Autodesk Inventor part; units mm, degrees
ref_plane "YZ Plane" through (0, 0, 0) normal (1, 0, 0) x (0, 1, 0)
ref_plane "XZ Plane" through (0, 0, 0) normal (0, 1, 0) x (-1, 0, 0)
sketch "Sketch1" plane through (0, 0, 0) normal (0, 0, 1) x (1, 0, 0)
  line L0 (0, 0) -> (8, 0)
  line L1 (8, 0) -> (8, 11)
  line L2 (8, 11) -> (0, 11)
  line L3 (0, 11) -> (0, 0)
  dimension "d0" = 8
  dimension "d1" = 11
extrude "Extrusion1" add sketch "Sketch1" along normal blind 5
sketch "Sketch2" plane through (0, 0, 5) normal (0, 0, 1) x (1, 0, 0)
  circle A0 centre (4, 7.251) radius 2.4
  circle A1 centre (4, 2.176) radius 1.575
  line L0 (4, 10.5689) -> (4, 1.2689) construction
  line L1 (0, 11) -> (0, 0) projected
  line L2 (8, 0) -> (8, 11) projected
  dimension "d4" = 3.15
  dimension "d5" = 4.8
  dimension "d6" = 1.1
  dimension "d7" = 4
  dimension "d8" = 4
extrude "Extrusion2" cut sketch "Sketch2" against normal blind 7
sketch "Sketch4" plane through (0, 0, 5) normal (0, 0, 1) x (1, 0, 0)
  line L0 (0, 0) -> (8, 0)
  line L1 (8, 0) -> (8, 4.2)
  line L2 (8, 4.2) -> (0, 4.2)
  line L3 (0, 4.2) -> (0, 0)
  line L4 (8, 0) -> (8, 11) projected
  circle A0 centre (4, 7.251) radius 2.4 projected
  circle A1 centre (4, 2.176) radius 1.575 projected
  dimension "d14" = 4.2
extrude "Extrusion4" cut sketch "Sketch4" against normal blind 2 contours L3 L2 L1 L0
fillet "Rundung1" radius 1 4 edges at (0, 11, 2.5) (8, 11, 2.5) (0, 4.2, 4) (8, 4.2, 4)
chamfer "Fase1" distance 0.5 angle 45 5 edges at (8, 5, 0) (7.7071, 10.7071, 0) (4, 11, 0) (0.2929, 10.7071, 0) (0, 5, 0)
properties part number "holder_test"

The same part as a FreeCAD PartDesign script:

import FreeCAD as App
import Part
import Sketcher

V = App.Vector


def edges_at(feature, points):
    """Names of the edges that pass closest to the given points."""
    edges = feature.Shape.Edges
    near = lambda p: min(range(len(edges)), key=lambda i: edges[i].distToShape(Part.Vertex(*p))[0])
    return sorted({f"Edge{near(p) + 1}" for p in points})

doc = App.newDocument("Part")
params = doc.addObject("Spreadsheet::Sheet", "Params")
for row, (alias, value) in enumerate([
    ("sketch1_width", "8 mm"),
    ("sketch1_height", "11 mm"),
    ("pad1_length", "5 mm"),
    ("sketch2_diameter", "4.8 mm"),
    ("sketch2_diameter2", "3.15 mm"),
    ("pocket1_length", "7 mm"),
    ("sketch3_height", "4.2 mm"),
    ("sketch3_diameter", "3.15 mm"),
    ("sketch3_width", "8 mm"),
    ("pocket2_length", "2 mm"),
    ("fillet_radius", "1 mm"),
    ("chamfer_size", "0.5 mm"),
], start=1):
    params.set(f"A{row}", alias)
    params.set(f"B{row}", "=" + value)
    params.setAlias(f"B{row}", alias)

body = doc.addObject("PartDesign::Body", "Body")

# Sketch on XY plane
sketch1 = body.newObject("Sketcher::SketchObject", "Sketch")
sketch1.AttachmentSupport = (doc.getObject("XY_Plane"), [""])
sketch1.MapMode = "FlatFace"
sketch1.addGeometry([
    Part.LineSegment(V(0, 11, 0), V(0, 0, 0)),
    Part.LineSegment(V(0, 0, 0), V(8, 0, 0)),
    Part.LineSegment(V(8, 0, 0), V(8, 11, 0)),
    Part.LineSegment(V(8, 11, 0), V(0, 11, 0)),
], False)
sketch1.addConstraint([
    Sketcher.Constraint("Coincident", 0, 2, 1, 1),
    Sketcher.Constraint("Coincident", 1, 2, 2, 1),
    Sketcher.Constraint("Coincident", 2, 2, 3, 1),
    Sketcher.Constraint("Coincident", 3, 2, 0, 1),
    Sketcher.Constraint("Vertical", 0),
    Sketcher.Constraint("Horizontal", 1),
    Sketcher.Constraint("Vertical", 2),
    Sketcher.Constraint("Horizontal", 3),
    Sketcher.Constraint("Coincident", 0, 2, -1, 1),
    Sketcher.Constraint("DistanceX", 1, 1, 1, 2, 8.0),
    Sketcher.Constraint("DistanceY", 0, 2, 0, 1, 11.0),
])
sketch1.setExpression("Constraints[9]", "Params.sketch1_width")
sketch1.setExpression("Constraints[10]", "Params.sketch1_height")
pad1 = body.newObject("PartDesign::Pad", "Pad")
pad1.Profile = sketch1
pad1.setExpression("Length", "Params.pad1_length")

# Sketch on XY plane
sketch2 = body.newObject("Sketcher::SketchObject", "Sketch001")
sketch2.AttachmentSupport = (doc.getObject("XY_Plane"), [""])
sketch2.MapMode = "FlatFace"
sketch2.AttachmentOffset = App.Placement(V(0, 0, 5), App.Rotation())
sketch2.addGeometry([
    Part.Circle(V(4, 7.3, 0), V(0, 0, 1), 2.4),
    Part.Circle(V(4, 2.2, 0), V(0, 0, 1), 1.6),
], False)
sketch2.addConstraint([
    Sketcher.Constraint("Vertical", 0, 3, 1, 3),
    Sketcher.Constraint("Diameter", 0, 4.8),
    Sketcher.Constraint("Diameter", 1, 3.15),
    Sketcher.Constraint("DistanceX", -1, 1, 0, 3, 4.0),
    Sketcher.Constraint("DistanceY", -1, 1, 0, 3, 7.251),
    Sketcher.Constraint("DistanceY", -1, 1, 1, 3, 2.176),
])
sketch2.setExpression("Constraints[1]", "Params.sketch2_diameter")
sketch2.setExpression("Constraints[2]", "Params.sketch2_diameter2")
pocket1 = body.newObject("PartDesign::Pocket", "Pocket")
pocket1.Profile = sketch2
pocket1.setExpression("Length", "Params.pocket1_length")

# Sketch on XY plane
sketch3 = body.newObject("Sketcher::SketchObject", "Sketch002")
sketch3.AttachmentSupport = (doc.getObject("XY_Plane"), [""])
sketch3.MapMode = "FlatFace"
sketch3.AttachmentOffset = App.Placement(V(0, 0, 5), App.Rotation())
sketch3.addGeometry([
    Part.LineSegment(V(0, 4.2, 0), V(0, 0, 0)),  # 0
    Part.LineSegment(V(0, 0, 0), V(8, 0, 0)),  # 1
    Part.LineSegment(V(8, 0, 0), V(8, 4.2, 0)),  # 2
    Part.LineSegment(V(8, 4.2, 0), V(0, 4.2, 0)),  # 3
    Part.Circle(V(4, 2.2, 0), V(0, 0, 1), 1.6),  # 4
], False)
sketch3.addConstraint([
    Sketcher.Constraint("Coincident", 0, 2, 1, 1),
    Sketcher.Constraint("Coincident", 1, 2, 2, 1),
    Sketcher.Constraint("Coincident", 2, 2, 3, 1),
    Sketcher.Constraint("Coincident", 3, 2, 0, 1),
    Sketcher.Constraint("Vertical", 0),
    Sketcher.Constraint("Horizontal", 1),
    Sketcher.Constraint("Vertical", 2),
    Sketcher.Constraint("Horizontal", 3),
    Sketcher.Constraint("Coincident", 0, 2, -1, 1),
    Sketcher.Constraint("DistanceY", 0, 2, 0, 1, 4.2),
    Sketcher.Constraint("Diameter", 4, 3.15),
    Sketcher.Constraint("DistanceX", 1, 1, 1, 2, 8.0),
    Sketcher.Constraint("DistanceX", -1, 1, 4, 3, 4.0),
    Sketcher.Constraint("DistanceY", -1, 1, 4, 3, 2.176),
])
sketch3.setExpression("Constraints[9]", "Params.sketch3_height")
sketch3.setExpression("Constraints[10]", "Params.sketch3_diameter")
sketch3.setExpression("Constraints[11]", "Params.sketch3_width")
pocket2 = body.newObject("PartDesign::Pocket", "Pocket001")
pocket2.Profile = sketch3
pocket2.setExpression("Length", "Params.pocket2_length")
doc.recompute()

fillet = body.newObject("PartDesign::Fillet", "Fillet")
fillet.Base = (pocket2, edges_at(pocket2, [
    (0, 11, 2.5),
    (8, 11, 2.5),
    (0, 4.2, 4),
    (8, 4.2, 4),
]))
fillet.setExpression("Radius", "Params.fillet_radius")
doc.recompute()

chamfer = body.newObject("PartDesign::Chamfer", "Chamfer")
chamfer.Base = (fillet, edges_at(fillet, [
    (8, 5, 0),
    (7.707, 10.707, 0),
    (4, 11, 0),
    (0.293, 10.707, 0),
    (0, 5, 0),
]))
chamfer.setExpression("Size", "Params.chamfer_size")

doc.recompute()
